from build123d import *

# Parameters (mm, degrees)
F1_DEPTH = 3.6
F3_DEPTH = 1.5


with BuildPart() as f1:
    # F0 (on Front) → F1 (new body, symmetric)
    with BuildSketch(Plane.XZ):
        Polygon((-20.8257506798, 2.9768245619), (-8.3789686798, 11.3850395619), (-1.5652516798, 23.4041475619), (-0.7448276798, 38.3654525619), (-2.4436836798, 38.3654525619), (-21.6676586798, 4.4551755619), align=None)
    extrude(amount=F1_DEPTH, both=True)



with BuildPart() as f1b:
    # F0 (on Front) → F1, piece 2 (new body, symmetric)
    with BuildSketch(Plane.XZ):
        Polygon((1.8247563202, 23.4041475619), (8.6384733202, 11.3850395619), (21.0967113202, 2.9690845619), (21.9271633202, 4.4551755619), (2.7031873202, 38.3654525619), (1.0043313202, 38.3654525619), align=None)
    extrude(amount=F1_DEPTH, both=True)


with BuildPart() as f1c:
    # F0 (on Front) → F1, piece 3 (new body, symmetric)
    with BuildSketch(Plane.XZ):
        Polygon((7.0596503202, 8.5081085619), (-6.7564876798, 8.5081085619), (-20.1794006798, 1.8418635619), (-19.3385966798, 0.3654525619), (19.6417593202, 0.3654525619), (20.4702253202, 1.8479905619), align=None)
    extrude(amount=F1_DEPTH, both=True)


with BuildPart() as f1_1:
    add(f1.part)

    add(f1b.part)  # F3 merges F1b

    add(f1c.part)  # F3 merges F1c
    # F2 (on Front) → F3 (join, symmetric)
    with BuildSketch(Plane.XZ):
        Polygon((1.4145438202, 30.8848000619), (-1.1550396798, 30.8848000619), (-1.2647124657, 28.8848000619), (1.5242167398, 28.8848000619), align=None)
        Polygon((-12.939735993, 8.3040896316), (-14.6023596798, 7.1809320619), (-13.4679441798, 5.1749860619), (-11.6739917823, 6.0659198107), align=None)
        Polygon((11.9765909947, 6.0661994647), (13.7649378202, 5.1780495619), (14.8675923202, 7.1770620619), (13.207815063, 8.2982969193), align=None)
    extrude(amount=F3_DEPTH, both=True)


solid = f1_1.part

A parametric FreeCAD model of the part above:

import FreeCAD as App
import Part
import Sketcher
Q = App.Units.Quantity

doc = App.newDocument("Part")
body = doc.addObject("PartDesign::Body", "Body")

# Sketch on XZ plane
sketch1 = doc.addObject("Sketcher::SketchObject", "Sketch")
body.addObject(sketch1)
sketch1.AttachmentSupport = (doc.XZ_Plane, [""])
sketch1.MapMode = "FlatFace"
sketch1.addGeometry([
    Part.LineSegment(App.Vector(-20.825751, 2.976825, 0), App.Vector(-8.378969, 11.38504, 0)),  # 0
    Part.LineSegment(App.Vector(-8.378969, 11.38504, 0), App.Vector(-1.565252, 23.404148, 0)),  # 1
    Part.LineSegment(App.Vector(-1.565252, 23.404148, 0), App.Vector(-0.744828, 38.365453, 0)),  # 2
    Part.LineSegment(App.Vector(-0.744828, 38.365453, 0), App.Vector(-2.443684, 38.365453, 0)),  # 3
    Part.LineSegment(App.Vector(-2.443684, 38.365453, 0), App.Vector(-21.667659, 4.455176, 0)),  # 4
    Part.LineSegment(App.Vector(-21.667659, 4.455176, 0), App.Vector(-20.825751, 2.976825, 0)),  # 5
], False)
sketch1.addConstraint([
    Sketcher.Constraint("Coincident", 0, 2, 1, 1),
    Sketcher.Constraint("Coincident", 1, 2, 2, 1),
    Sketcher.Constraint("Coincident", 2, 2, 3, 1),
    Sketcher.Constraint("Coincident", 3, 2, 4, 1),
    Sketcher.Constraint("Coincident", 4, 2, 5, 1),
    Sketcher.Constraint("Coincident", 5, 2, 0, 1),
    Sketcher.Constraint("Horizontal", 3),
    Sketcher.Constraint("Parallel", 1, 4),
    Sketcher.Constraint("DistanceX", 5, 2, 1, 2, Q("19.260499 mm")),
    Sketcher.Constraint("Distance", 1, Q("13.816139 mm")),
    Sketcher.Constraint("DistanceX", 3, 2, 3, 1, Q("1.698856 mm")),
    Sketcher.Constraint("DistanceX", 0, 2, -1, 1, Q("8.378969 mm")),
    Sketcher.Constraint("DistanceY", -1, 1, 0, 2, Q("11.38504 mm")),
    Sketcher.Constraint("DistanceX", 1, 2, -1, 1, Q("1.565252 mm")),
    Sketcher.Constraint("DistanceX", 4, 2, -1, 1, Q("21.667659 mm")),
    Sketcher.Constraint("DistanceX", 0, 2, 2, 2, Q("7.634141 mm")),
    Sketcher.Constraint("DistanceY", 4, 2, 1, 2, Q("18.948972 mm")),
    Sketcher.Constraint("DistanceY", 5, 2, 4, 2, Q("1.478351 mm")),
])
pad1 = doc.addObject("PartDesign::Pad", "Pad")
body.addObject(pad1)
pad1.Profile = sketch1
pad1.Length = 7.2
pad1.Midplane = True
body2 = doc.addObject("PartDesign::Body", "Body001")

# Sketch on XZ plane
sketch2 = doc.addObject("Sketcher::SketchObject", "Sketch001")
body2.addObject(sketch2)
sketch2.AttachmentSupport = (doc.getObject("XZ_Plane001"), [""])
sketch2.MapMode = "FlatFace"
sketch2.addGeometry([
    Part.LineSegment(App.Vector(1.824756, 23.404148, 0), App.Vector(8.638473, 11.38504, 0)),  # 0
    Part.LineSegment(App.Vector(8.638473, 11.38504, 0), App.Vector(21.096711, 2.969085, 0)),  # 1
    Part.LineSegment(App.Vector(21.096711, 2.969085, 0), App.Vector(21.927163, 4.455176, 0)),  # 2
    Part.LineSegment(App.Vector(21.927163, 4.455176, 0), App.Vector(2.703187, 38.365453, 0)),  # 3
    Part.LineSegment(App.Vector(2.703187, 38.365453, 0), App.Vector(1.004331, 38.365453, 0)),  # 4
    Part.LineSegment(App.Vector(1.004331, 38.365453, 0), App.Vector(1.824756, 23.404148, 0)),  # 5
], False)
sketch2.addConstraint([
    Sketcher.Constraint("Coincident", 0, 2, 1, 1),
    Sketcher.Constraint("Coincident", 1, 2, 2, 1),
    Sketcher.Constraint("Coincident", 2, 2, 3, 1),
    Sketcher.Constraint("Coincident", 3, 2, 4, 1),
    Sketcher.Constraint("Coincident", 4, 2, 5, 1),
    Sketcher.Constraint("Coincident", 5, 2, 0, 1),
    Sketcher.Constraint("Horizontal", 4),
    Sketcher.Constraint("Parallel", 0, 3),
    Sketcher.Constraint("Distance", 0, Q("13.816139 mm")),
    Sketcher.Constraint("DistanceX", 4, 2, 4, 1, Q("1.698856 mm")),
    Sketcher.Constraint("DistanceY", -1, 1, 0, 2, Q("11.38504 mm")),
    Sketcher.Constraint("DistanceX", -1, 1, 1, 2, Q("21.096711 mm")),
    Sketcher.Constraint("DistanceX", -1, 1, 4, 2, Q("1.004331 mm")),
    Sketcher.Constraint("DistanceX", 0, 2, 1, 2, Q("12.458238 mm")),
    Sketcher.Constraint("DistanceX", 1, 2, 2, 2, Q("0.830452 mm")),
    Sketcher.Constraint("DistanceY", 1, 2, 2, 2, Q("1.486091 mm")),
    Sketcher.Constraint("DistanceY", 1, 2, 3, 2, Q("35.396368 mm")),
    Sketcher.Constraint("DistanceY", 2, 2, 5, 2, Q("18.948972 mm")),
])
pad2 = doc.addObject("PartDesign::Pad", "Pad001")
body2.addObject(pad2)
pad2.Profile = sketch2
pad2.Length = 7.2
pad2.Midplane = True
body3 = doc.addObject("PartDesign::Body", "Body002")

# Sketch on XZ plane
sketch3 = doc.addObject("Sketcher::SketchObject", "Sketch002")
body3.addObject(sketch3)
sketch3.AttachmentSupport = (doc.getObject("XZ_Plane002"), [""])
sketch3.MapMode = "FlatFace"
sketch3.addGeometry([
    Part.LineSegment(App.Vector(7.05965, 8.508109, 0), App.Vector(-6.756488, 8.508109, 0)),  # 0
    Part.LineSegment(App.Vector(-6.756488, 8.508109, 0), App.Vector(-20.179401, 1.841864, 0)),  # 1
    Part.LineSegment(App.Vector(-20.179401, 1.841864, 0), App.Vector(-19.338597, 0.365453, 0)),  # 2
    Part.LineSegment(App.Vector(-19.338597, 0.365453, 0), App.Vector(19.641759, 0.365453, 0)),  # 3
    Part.LineSegment(App.Vector(19.641759, 0.365453, 0), App.Vector(20.470225, 1.847991, 0)),  # 4
    Part.LineSegment(App.Vector(20.470225, 1.847991, 0), App.Vector(7.05965, 8.508109, 0)),  # 5
], False)
sketch3.addConstraint([
    Sketcher.Constraint("Coincident", 0, 2, 1, 1),
    Sketcher.Constraint("Coincident", 1, 2, 2, 1),
    Sketcher.Constraint("Coincident", 2, 2, 3, 1),
    Sketcher.Constraint("Coincident", 3, 2, 4, 1),
    Sketcher.Constraint("Coincident", 4, 2, 5, 1),
    Sketcher.Constraint("Coincident", 5, 2, 0, 1),
    Sketcher.Constraint("Horizontal", 0),
    Sketcher.Constraint("Horizontal", 3),
    Sketcher.Constraint("DistanceX", 1, 2, -1, 1, Q("20.179401 mm")),
    Sketcher.Constraint("Distance", 1, Q("14.987108 mm")),
    Sketcher.Constraint("Distance", 2, Q("1.699041 mm")),
    Sketcher.Constraint("DistanceX", 0, 2, 0, 1, Q("13.816138 mm")),
    Sketcher.Constraint("DistanceX", 3, 1, 3, 2, Q("38.980356 mm")),
    Sketcher.Constraint("DistanceY", -1, 1, 0, 2, Q("8.508109 mm")),
    Sketcher.Constraint("DistanceX", -1, 1, 3, 2, Q("19.641759 mm")),
    Sketcher.Constraint("DistanceY", -1, 1, 4, 2, Q("1.847991 mm")),
    Sketcher.Constraint("DistanceX", -1, 1, 5, 2, Q("7.05965 mm")),
    Sketcher.Constraint("Distance", 4, Q("1.698315 mm")),
])
pad3 = doc.addObject("PartDesign::Pad", "Pad002")
body3.addObject(pad3)
pad3.Profile = sketch3
pad3.Length = 7.2
pad3.Midplane = True
body.AllowCompound = True
doc.recompute()

boolean = doc.addObject("PartDesign::Boolean", "Boolean")
body.addObject(boolean)
boolean.Type = "Fuse"
boolean.addObjects([body2])
doc.recompute()

boolean2 = doc.addObject("PartDesign::Boolean", "Boolean001")
body.addObject(boolean2)
boolean2.Type = "Fuse"
boolean2.addObjects([body3])

# Sketch on XZ plane
sketch4 = doc.addObject("Sketcher::SketchObject", "Sketch003")
body.addObject(sketch4)
sketch4.AttachmentSupport = (doc.XZ_Plane, [""])
sketch4.MapMode = "FlatFace"
sketch4.addGeometry([
    Part.LineSegment(App.Vector(1.414544, 30.8848, 0), App.Vector(-1.15504, 30.8848, 0)),  # 0
    Part.LineSegment(App.Vector(-1.15504, 30.8848, 0), App.Vector(-1.264712, 28.8848, 0)),  # 1
    Part.LineSegment(App.Vector(-1.264712, 28.8848, 0), App.Vector(1.524217, 28.8848, 0)),  # 2
    Part.LineSegment(App.Vector(1.524217, 28.8848, 0), App.Vector(1.414544, 30.8848, 0)),  # 3
    Part.LineSegment(App.Vector(-12.939736, 8.30409, 0), App.Vector(-14.60236, 7.180932, 0)),  # 4
    Part.LineSegment(App.Vector(-14.60236, 7.180932, 0), App.Vector(-13.467944, 5.174986, 0)),  # 5
    Part.LineSegment(App.Vector(-13.467944, 5.174986, 0), App.Vector(-11.673992, 6.06592, 0)),  # 6
    Part.LineSegment(App.Vector(-11.673992, 6.06592, 0), App.Vector(-12.939736, 8.30409, 0)),  # 7
    Part.LineSegment(App.Vector(11.976591, 6.066199, 0), App.Vector(13.764938, 5.17805, 0)),  # 8
    Part.LineSegment(App.Vector(13.764938, 5.17805, 0), App.Vector(14.867592, 7.177062, 0)),  # 9
    Part.LineSegment(App.Vector(14.867592, 7.177062, 0), App.Vector(13.207815, 8.298297, 0)),  # 10
    Part.LineSegment(App.Vector(13.207815, 8.298297, 0), App.Vector(11.976591, 6.066199, 0)),  # 11
], False)
sketch4.addConstraint([
    Sketcher.Constraint("Coincident", 0, 2, 1, 1),
    Sketcher.Constraint("Coincident", 1, 2, 2, 1),
    Sketcher.Constraint("Coincident", 2, 2, 3, 1),
    Sketcher.Constraint("Coincident", 3, 2, 0, 1),
    Sketcher.Constraint("Coincident", 4, 2, 5, 1),
    Sketcher.Constraint("Coincident", 5, 2, 6, 1),
    Sketcher.Constraint("Coincident", 6, 2, 7, 1),
    Sketcher.Constraint("Coincident", 7, 2, 4, 1),
    Sketcher.Constraint("Coincident", 8, 2, 9, 1),
    Sketcher.Constraint("Coincident", 9, 2, 10, 1),
    Sketcher.Constraint("Coincident", 10, 2, 11, 1),
    Sketcher.Constraint("Coincident", 11, 2, 8, 1),
    Sketcher.Constraint("Horizontal", 0),
    Sketcher.Constraint("Horizontal", 2),
    Sketcher.Constraint("Parallel", 5, 7),
    Sketcher.Constraint("Parallel", 9, 11),
    Sketcher.Constraint("Equal", 1, 3),
    Sketcher.Constraint("Equal", 3, 6),
    Sketcher.Constraint("Equal", 6, 10),
    Sketcher.Constraint("DistanceY", 1, 2, 0, 2, Q("2 mm")),
    Sketcher.Constraint("DistanceX", 11, 2, 9, 2, Q("2.891001 mm")),
    Sketcher.Constraint("Distance", 5, Q("2.304499 mm")),
    Sketcher.Constraint("DistanceX", 2, 1, 2, 2, Q("2.788929 mm")),
    Sketcher.Constraint("DistanceY", -1, 1, 0, 2, Q("30.8848 mm")),
    Sketcher.Constraint("DistanceY", -1, 1, 11, 2, Q("6.066199 mm")),
    Sketcher.Constraint("DistanceX", 2, 2, 10, 2, Q("11.683598 mm")),
    Sketcher.Constraint("Distance", 4, Q("2.00644 mm")),
    Sketcher.Constraint("Distance", 9, Q("2.282958 mm")),
    Sketcher.Constraint("Distance", 11, Q("2.549151 mm")),
    Sketcher.Constraint("DistanceX", 0, 2, 0, 1, Q("2.569584 mm")),
    Sketcher.Constraint("DistanceX", 0, 2, -1, 1, Q("1.15504 mm")),
    Sketcher.Constraint("DistanceX", 4, 2, -1, 1, Q("14.60236 mm")),
    Sketcher.Constraint("DistanceX", 6, 2, -1, 1, Q("11.673992 mm")),
    Sketcher.Constraint("DistanceY", -1, 1, 6, 2, Q("6.06592 mm")),
    Sketcher.Constraint("DistanceY", -1, 1, 7, 2, Q("8.30409 mm")),
    Sketcher.Constraint("DistanceY", -1, 1, 8, 2, Q("5.17805 mm")),
])
pad4 = doc.addObject("PartDesign::Pad", "Pad003")
body.addObject(pad4)
pad4.Profile = sketch4
pad4.Length = 3
pad4.Midplane = True

doc.recompute()
